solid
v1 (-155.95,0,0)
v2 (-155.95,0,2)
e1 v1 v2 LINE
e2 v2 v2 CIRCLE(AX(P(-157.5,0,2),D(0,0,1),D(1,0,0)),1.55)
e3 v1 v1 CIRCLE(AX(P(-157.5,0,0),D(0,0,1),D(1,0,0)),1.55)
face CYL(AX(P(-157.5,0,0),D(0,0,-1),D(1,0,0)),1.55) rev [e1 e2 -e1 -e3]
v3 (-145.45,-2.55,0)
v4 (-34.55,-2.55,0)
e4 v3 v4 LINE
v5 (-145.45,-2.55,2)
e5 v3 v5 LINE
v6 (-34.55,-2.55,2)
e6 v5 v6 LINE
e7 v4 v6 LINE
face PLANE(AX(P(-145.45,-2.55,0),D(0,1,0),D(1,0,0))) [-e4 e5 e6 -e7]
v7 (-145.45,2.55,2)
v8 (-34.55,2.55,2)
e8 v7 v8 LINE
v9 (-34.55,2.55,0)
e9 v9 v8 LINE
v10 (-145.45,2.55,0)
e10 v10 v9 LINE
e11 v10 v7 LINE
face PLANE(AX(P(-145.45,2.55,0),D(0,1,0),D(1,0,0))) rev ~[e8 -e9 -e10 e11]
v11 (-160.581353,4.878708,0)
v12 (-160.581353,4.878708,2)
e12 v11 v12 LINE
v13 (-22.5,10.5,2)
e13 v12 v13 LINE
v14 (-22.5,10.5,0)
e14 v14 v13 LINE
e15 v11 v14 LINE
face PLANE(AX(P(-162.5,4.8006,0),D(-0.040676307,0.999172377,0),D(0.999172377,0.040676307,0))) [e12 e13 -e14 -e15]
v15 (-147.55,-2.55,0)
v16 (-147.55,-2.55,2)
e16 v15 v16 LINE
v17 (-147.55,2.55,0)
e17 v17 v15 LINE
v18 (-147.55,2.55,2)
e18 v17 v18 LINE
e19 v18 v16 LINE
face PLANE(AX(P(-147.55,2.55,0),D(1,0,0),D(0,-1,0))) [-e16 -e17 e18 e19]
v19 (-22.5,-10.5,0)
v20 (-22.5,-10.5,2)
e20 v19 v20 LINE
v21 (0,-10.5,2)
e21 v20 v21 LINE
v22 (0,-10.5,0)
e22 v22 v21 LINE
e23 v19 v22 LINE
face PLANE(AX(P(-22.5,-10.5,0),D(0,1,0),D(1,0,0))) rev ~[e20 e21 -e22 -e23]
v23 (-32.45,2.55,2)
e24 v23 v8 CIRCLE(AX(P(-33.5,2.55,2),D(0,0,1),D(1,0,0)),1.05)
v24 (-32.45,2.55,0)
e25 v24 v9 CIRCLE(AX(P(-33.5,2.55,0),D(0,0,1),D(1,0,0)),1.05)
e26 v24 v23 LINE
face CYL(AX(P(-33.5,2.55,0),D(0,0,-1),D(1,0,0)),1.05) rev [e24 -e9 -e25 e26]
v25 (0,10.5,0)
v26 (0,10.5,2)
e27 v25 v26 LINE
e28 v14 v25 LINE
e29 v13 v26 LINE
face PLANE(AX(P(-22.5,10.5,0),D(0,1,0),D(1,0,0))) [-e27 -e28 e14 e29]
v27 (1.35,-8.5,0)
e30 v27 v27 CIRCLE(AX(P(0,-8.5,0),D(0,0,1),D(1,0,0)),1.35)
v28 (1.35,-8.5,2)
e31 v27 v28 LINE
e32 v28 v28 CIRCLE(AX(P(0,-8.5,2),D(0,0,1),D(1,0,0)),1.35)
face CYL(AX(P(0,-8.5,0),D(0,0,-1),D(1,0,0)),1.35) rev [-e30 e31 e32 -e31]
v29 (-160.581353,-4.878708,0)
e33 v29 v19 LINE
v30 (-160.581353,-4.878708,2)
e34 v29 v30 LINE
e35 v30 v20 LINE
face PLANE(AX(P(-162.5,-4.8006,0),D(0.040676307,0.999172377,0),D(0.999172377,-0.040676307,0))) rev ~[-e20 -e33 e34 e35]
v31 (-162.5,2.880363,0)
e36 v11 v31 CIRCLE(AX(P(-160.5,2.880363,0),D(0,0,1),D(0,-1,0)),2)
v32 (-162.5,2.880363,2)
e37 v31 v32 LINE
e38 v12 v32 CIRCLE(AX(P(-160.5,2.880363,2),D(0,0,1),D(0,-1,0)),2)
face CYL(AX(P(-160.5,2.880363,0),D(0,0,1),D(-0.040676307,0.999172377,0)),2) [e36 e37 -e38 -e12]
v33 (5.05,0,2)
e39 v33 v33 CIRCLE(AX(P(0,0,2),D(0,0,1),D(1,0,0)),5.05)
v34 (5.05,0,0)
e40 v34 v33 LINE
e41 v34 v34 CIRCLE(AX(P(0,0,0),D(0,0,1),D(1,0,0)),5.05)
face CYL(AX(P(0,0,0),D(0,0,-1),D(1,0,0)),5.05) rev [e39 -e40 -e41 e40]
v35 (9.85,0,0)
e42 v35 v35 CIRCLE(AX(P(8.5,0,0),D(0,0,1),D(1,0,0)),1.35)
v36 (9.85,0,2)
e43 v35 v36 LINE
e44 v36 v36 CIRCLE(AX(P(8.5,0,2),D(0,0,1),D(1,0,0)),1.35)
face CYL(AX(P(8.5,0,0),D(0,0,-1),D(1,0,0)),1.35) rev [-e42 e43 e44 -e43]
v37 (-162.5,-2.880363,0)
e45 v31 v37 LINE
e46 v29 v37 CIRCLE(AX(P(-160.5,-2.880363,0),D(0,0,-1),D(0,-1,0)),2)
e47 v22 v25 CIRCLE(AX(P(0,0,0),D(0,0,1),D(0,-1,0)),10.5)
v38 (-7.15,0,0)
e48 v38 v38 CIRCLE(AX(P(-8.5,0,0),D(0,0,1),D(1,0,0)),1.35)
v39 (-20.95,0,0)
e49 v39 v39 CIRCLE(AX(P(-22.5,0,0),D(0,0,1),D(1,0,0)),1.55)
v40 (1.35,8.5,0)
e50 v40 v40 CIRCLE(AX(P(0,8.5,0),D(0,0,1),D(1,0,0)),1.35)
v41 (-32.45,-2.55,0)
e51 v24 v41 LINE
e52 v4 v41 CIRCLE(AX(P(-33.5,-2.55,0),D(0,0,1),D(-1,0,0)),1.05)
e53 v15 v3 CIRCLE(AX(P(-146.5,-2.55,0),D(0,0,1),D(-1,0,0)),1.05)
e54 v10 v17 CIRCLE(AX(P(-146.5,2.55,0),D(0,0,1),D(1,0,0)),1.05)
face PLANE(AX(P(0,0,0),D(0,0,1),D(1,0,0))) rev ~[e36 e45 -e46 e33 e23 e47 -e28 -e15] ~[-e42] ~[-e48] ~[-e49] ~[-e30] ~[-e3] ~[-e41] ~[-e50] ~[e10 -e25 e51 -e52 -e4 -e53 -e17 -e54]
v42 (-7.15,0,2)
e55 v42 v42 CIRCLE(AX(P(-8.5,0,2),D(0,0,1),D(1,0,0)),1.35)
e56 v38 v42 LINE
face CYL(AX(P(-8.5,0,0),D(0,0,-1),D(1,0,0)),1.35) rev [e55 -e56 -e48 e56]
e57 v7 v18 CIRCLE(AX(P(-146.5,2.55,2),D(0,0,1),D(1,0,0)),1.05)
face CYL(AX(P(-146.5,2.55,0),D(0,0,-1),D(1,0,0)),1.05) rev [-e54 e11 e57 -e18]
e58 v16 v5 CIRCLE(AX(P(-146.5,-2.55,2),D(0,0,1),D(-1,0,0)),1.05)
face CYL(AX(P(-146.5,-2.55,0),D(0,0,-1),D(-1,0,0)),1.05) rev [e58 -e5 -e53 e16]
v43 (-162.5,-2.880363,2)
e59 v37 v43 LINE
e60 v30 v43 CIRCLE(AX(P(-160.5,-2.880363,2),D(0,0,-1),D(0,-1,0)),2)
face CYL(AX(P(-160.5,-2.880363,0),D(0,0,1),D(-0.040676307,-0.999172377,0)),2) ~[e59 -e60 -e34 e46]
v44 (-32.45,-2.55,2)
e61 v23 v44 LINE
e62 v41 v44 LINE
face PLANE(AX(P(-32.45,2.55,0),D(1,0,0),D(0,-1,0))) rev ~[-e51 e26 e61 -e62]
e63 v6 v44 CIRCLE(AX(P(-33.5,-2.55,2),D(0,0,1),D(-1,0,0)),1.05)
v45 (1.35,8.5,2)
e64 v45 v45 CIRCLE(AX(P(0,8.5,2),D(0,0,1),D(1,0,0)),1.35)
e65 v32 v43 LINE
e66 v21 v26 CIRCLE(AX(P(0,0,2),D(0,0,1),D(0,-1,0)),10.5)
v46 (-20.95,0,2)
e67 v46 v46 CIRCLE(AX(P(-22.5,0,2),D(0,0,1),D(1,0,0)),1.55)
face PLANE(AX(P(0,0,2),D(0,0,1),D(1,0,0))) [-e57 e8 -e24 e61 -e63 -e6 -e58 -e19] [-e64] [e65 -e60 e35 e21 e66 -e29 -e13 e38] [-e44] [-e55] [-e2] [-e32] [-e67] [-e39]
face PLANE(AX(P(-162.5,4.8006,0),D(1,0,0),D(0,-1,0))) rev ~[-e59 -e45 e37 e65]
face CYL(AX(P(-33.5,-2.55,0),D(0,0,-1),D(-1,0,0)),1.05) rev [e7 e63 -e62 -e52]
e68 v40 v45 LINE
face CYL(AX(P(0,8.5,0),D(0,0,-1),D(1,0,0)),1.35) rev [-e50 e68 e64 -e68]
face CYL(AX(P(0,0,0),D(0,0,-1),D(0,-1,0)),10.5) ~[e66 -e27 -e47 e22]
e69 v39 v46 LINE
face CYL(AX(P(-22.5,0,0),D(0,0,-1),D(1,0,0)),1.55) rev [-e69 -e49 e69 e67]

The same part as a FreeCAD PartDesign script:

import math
import FreeCAD as App
import Part
import Sketcher

V = App.Vector
Q = App.Units.Quantity


def edges_at(feature, points):
    """Names of the edges that pass closest to the given points."""
    edges = feature.Shape.Edges
    near = lambda p: min(range(len(edges)), key=lambda i: edges[i].distToShape(Part.Vertex(*p))[0])
    return sorted({f"Edge{near(p) + 1}" for p in points})

doc = App.newDocument("Part")
body = doc.addObject("PartDesign::Body", "Body")

# Sketch on XY plane
sketch1 = body.newObject("Sketcher::SketchObject", "Sketch")
sketch1.AttachmentSupport = (doc.getObject("XY_Plane"), [""])
sketch1.MapMode = "FlatFace"
sketch1.addGeometry(Part.LineSegment(V(-22.5, 10.5, 0), V(-162.5, 4.8, 0)), False)
sketch1.addGeometry(Part.LineSegment(V(-162.5, 4.8, 0), V(-162.5, -4.8, 0)), False)
sketch1.addGeometry(Part.LineSegment(V(-162.5, -4.8, 0), V(-22.5, -10.5, 0)), False)
sketch1.addGeometry(Part.LineSegment(V(-22.5, -10.5, 0), V(0, -10.5, 0)), False)
sketch1.addGeometry(Part.ArcOfCircle(Part.Circle(V(0, 0, 0), V(0, 0, 1), 10.5), math.radians(-90), math.radians(90)), False)
sketch1.addGeometry(Part.LineSegment(V(0, 10.5, 0), V(-22.5, 10.5, 0)), False)
sketch1.addGeometry(Part.Circle(V(0, -8.5, 0), V(0, 0, 1), 1.4), False)
sketch1.addGeometry(Part.Circle(V(-157.5, 0, 0), V(0, 0, 1), 1.6), False)
sketch1.addGeometry(Part.LineSegment(V(-147.6, -2.5, 0), V(-147.6, 2.5, 0)), False)
sketch1.addGeometry(Part.ArcOfCircle(Part.Circle(V(-146.5, 2.5, 0), V(0, 0, 1), 1.1), math.radians(0), math.radians(180)), False)
sketch1.addGeometry(Part.LineSegment(V(-145.4, 2.5, 0), V(-34.5, 2.5, 0)), False)
sketch1.addGeometry(Part.ArcOfCircle(Part.Circle(V(-33.5, 2.5, 0), V(0, 0, 1), 1), math.radians(0), math.radians(180)), False)
sketch1.addGeometry(Part.LineSegment(V(-32.5, 2.5, 0), V(-32.5, -2.5, 0)), False)
sketch1.addGeometry(Part.ArcOfCircle(Part.Circle(V(-33.5, -2.5, 0), V(0, 0, 1), 1), math.radians(180), math.radians(360)), False)
sketch1.addGeometry(Part.LineSegment(V(-34.5, -2.5, 0), V(-145.4, -2.5, 0)), False)
sketch1.addGeometry(Part.ArcOfCircle(Part.Circle(V(-146.5, -2.5, 0), V(0, 0, 1), 1.1), math.radians(180), math.radians(360)), False)
sketch1.addGeometry(Part.Circle(V(-22.5, 0, 0), V(0, 0, 1), 1.6), False)
sketch1.addGeometry(Part.Circle(V(-8.5, 0, 0), V(0, 0, 1), 1.4), False)
sketch1.addGeometry(Part.Circle(V(0, 0, 0), V(0, 0, 1), 5), False)
sketch1.addGeometry(Part.Circle(V(8.5, 0, 0), V(0, 0, 1), 1.4), False)
sketch1.addGeometry(Part.Circle(V(0, 8.5, 0), V(0, 0, 1), 1.4), False)
sketch1.addConstraint(Sketcher.Constraint("Coincident", 0, 2, 1, 1))
sketch1.addConstraint(Sketcher.Constraint("Coincident", 1, 2, 2, 1))
sketch1.addConstraint(Sketcher.Constraint("Coincident", 2, 2, 3, 1))
sketch1.addConstraint(Sketcher.Constraint("Tangent", 3, 2, 4, 1))
sketch1.addConstraint(Sketcher.Constraint("Tangent", 4, 2, 5, 1))
sketch1.addConstraint(Sketcher.Constraint("Coincident", 5, 2, 0, 1))
sketch1.addConstraint(Sketcher.Constraint("Tangent", 8, 2, 9, 2))
sketch1.addConstraint(Sketcher.Constraint("Coincident", 9, 1, 10, 1))
sketch1.addConstraint(Sketcher.Constraint("Coincident", 10, 2, 11, 2))
sketch1.addConstraint(Sketcher.Constraint("Tangent", 11, 1, 12, 1))
sketch1.addConstraint(Sketcher.Constraint("Tangent", 12, 2, 13, 2))
sketch1.addConstraint(Sketcher.Constraint("Coincident", 13, 1, 14, 1))
sketch1.addConstraint(Sketcher.Constraint("Coincident", 14, 2, 15, 2))
sketch1.addConstraint(Sketcher.Constraint("Tangent", 15, 1, 8, 1))
sketch1.addConstraint(Sketcher.Constraint("Vertical", 1))
sketch1.addConstraint(Sketcher.Constraint("Horizontal", 3))
sketch1.addConstraint(Sketcher.Constraint("Horizontal", 5))
sketch1.addConstraint(Sketcher.Constraint("Vertical", 8))
sketch1.addConstraint(Sketcher.Constraint("Horizontal", 10))
sketch1.addConstraint(Sketcher.Constraint("Vertical", 12))
sketch1.addConstraint(Sketcher.Constraint("Horizontal", 14))
sketch1.addConstraint(Sketcher.Constraint("Coincident", 4, 3, -1, 1))
sketch1.addConstraint(Sketcher.Constraint("Coincident", 18, 3, -1, 1))
sketch1.addConstraint(Sketcher.Constraint("Equal", 9, 11))
sketch1.addConstraint(Sketcher.Constraint("Equal", 11, 13))
sketch1.addConstraint(Sketcher.Constraint("Equal", 13, 15))
sketch1.addConstraint(Sketcher.Constraint("Equal", 7, 16))
sketch1.addConstraint(Sketcher.Constraint("Equal", 6, 17))
sketch1.addConstraint(Sketcher.Constraint("Equal", 17, 19))
sketch1.addConstraint(Sketcher.Constraint("Equal", 19, 20))
sketch1.addConstraint(Sketcher.Constraint("Symmetric", 17, 3, 19, 3, -1, 1))
sketch1.addConstraint(Sketcher.Constraint("Symmetric", 6, 3, 20, 3, -1, 1))
sketch1.addConstraint(Sketcher.Constraint("PointOnObject", 6, 3, -2))
sketch1.addConstraint(Sketcher.Constraint("PointOnObject", 7, 3, -1))
sketch1.addConstraint(Sketcher.Constraint("PointOnObject", 16, 3, -1))
sketch1.addConstraint(Sketcher.Constraint("PointOnObject", 17, 3, -1))
sketch1.addConstraint(Sketcher.Constraint("Horizontal", 9, 3, 11, 3))
sketch1.addConstraint(Sketcher.Constraint("Horizontal", 13, 3, 15, 3))
sketch1.addConstraint(Sketcher.Constraint("Horizontal", 8, 2, 9, 1))
sketch1.addConstraint(Sketcher.Constraint("Horizontal", 12, 2, 13, 1))
sketch1.addConstraint(Sketcher.Constraint("Vertical", 16, 3, 2, 2))
sketch1.addConstraint(Sketcher.Constraint("Vertical", 2, 2, 5, 2))
sketch1.addConstraint(Sketcher.Constraint("Equal", 0, 2))
sketch1.addConstraint(Sketcher.Constraint("Diameter", 6, Q("2.7 mm")))
sketch1.addConstraint(Sketcher.Constraint("Diameter", 7, Q("3.1 mm")))
sketch1.addConstraint(Sketcher.Constraint("Diameter", 18, Q("10.1 mm")))
sketch1.addConstraint(Sketcher.Constraint("Radius", 4, Q("10.5 mm")))
sketch1.addConstraint(Sketcher.Constraint("Radius", 9, Q("1.05 mm")))
sketch1.addConstraint(Sketcher.Constraint("DistanceX", 0, 2, 7, 3, Q("5 mm")))
sketch1.addConstraint(Sketcher.Constraint("DistanceY", 6, 3, -1, 1, Q("8.5 mm")))
sketch1.addConstraint(Sketcher.Constraint("DistanceX", 17, 3, -1, 1, Q("8.5 mm")))
sketch1.addConstraint(Sketcher.Constraint("DistanceX", 0, 2, -1, 1, Q("162.5 mm")))
sketch1.addConstraint(Sketcher.Constraint("DistanceX", 3, 1, 3, 2, Q("22.5 mm")))
sketch1.addConstraint(Sketcher.Constraint("DistanceX", 10, 1, 10, 2, Q("110.9 mm")))
sketch1.addConstraint(Sketcher.Constraint("DistanceY", 8, 1, 8, 2, Q("5.1 mm")))
sketch1.addConstraint(Sketcher.Constraint("DistanceX", 7, 3, 9, 3, Q("11 mm")))
sketch1.addConstraint(Sketcher.Constraint("DistanceY", -1, 1, 9, 3, Q("2.55 mm")))
sketch1.addConstraint(Sketcher.Constraint("Distance", 0, Q("140.116 mm")))
pad1 = body.newObject("PartDesign::Pad", "Pad")
pad1.Profile = sketch1
pad1.Length = 2
doc.recompute()

fillet = body.newObject("PartDesign::Fillet", "Fillet")
fillet.Base = (pad1, edges_at(pad1, [(-162.5, -4.801, 1), (-162.5, 4.801, 1)]))
fillet.Radius = 2

doc.recompute()
